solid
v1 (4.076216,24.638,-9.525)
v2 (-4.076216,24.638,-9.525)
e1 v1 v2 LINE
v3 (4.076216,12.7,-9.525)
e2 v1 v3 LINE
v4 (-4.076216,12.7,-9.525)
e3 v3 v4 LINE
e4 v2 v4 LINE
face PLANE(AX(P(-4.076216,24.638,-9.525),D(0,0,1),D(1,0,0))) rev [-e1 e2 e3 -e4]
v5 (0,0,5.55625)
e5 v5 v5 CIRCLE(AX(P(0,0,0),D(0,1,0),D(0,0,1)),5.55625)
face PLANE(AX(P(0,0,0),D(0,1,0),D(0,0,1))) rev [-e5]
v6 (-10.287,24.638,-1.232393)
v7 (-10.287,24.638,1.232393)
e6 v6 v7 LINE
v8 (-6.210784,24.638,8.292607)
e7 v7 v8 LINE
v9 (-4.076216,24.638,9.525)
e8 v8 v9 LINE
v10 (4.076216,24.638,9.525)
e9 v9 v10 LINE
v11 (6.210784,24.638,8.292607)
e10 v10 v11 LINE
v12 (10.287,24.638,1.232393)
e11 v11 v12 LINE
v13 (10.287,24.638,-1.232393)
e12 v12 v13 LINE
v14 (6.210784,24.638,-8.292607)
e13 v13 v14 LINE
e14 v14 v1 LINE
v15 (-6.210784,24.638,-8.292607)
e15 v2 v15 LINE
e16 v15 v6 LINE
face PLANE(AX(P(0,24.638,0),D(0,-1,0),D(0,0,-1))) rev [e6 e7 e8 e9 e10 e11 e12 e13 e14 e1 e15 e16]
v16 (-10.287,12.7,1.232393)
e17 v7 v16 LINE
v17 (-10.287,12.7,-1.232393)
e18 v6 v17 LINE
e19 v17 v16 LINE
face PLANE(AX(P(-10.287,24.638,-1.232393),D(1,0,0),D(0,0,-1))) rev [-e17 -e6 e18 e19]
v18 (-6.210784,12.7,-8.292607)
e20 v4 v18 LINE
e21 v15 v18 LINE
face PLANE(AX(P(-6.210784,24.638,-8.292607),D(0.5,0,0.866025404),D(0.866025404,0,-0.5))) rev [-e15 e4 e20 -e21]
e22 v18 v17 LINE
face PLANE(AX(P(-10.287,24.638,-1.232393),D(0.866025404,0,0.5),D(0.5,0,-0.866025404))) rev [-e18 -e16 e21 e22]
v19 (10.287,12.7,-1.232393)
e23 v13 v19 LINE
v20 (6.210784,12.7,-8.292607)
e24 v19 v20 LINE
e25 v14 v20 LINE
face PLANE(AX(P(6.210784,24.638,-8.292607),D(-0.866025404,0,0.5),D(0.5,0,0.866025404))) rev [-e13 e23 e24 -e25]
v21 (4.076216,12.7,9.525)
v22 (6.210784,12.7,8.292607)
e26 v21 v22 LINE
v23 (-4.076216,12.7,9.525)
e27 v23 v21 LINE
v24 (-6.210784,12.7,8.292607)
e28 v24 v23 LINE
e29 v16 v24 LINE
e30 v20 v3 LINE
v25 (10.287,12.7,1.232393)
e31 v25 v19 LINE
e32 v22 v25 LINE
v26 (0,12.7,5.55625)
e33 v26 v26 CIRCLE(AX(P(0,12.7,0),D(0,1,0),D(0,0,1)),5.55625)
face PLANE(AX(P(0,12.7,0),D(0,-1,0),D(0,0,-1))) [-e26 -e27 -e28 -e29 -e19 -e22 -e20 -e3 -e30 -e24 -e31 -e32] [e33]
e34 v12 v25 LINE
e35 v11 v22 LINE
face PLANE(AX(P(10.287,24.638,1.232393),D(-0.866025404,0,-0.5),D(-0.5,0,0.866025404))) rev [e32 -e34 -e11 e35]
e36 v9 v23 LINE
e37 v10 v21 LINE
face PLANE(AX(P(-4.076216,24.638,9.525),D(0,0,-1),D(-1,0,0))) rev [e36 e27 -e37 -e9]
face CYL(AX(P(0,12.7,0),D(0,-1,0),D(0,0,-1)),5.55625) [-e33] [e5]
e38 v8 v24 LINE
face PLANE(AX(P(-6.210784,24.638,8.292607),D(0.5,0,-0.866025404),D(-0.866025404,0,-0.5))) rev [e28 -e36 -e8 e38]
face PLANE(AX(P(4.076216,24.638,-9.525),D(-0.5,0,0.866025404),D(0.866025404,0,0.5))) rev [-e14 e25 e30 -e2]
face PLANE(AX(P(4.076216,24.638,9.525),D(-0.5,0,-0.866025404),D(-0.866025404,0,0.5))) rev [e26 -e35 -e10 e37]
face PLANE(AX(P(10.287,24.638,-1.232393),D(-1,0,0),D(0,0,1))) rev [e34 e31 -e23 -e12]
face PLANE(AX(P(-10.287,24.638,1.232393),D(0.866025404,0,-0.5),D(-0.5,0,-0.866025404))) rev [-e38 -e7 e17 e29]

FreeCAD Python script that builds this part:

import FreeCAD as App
import Part
import Sketcher

V = App.Vector
Q = App.Units.Quantity


def add_polygon(sketch, points):
    """Adds a closed chain of lines whose ends are joined by coincident constraints."""
    first, n = sketch.GeometryCount, len(points)
    for a, b in zip(points, points[1:] + points[:1]):
        sketch.addGeometry(Part.LineSegment(App.Vector(*a, 0), App.Vector(*b, 0)), False)
    for i in range(n):
        sketch.addConstraint(Sketcher.Constraint("Coincident", first + i, 2, first + (i + 1) % n, 1))

doc = App.newDocument("Part")
body = doc.addObject("PartDesign::Body", "Body")

sketch1 = doc.addObject("Sketcher::SketchObject", "Sketch")
body.addObject(sketch1)
sketch1.AttachmentSupport = (doc.XZ_Plane, [""])
sketch1.MapMode = "FlatFace"
sketch1.addGeometry(Part.Circle(V(0, 0, 0), V(0, 0, 1), 6), False)
sketch1.addConstraint(Sketcher.Constraint("Coincident", 0, 3, -1, 1))
sketch1.addConstraint(Sketcher.Constraint("Diameter", 0, Q("0.4375 in")))
pad1 = doc.addObject("PartDesign::Pad", "Pad")
body.addObject(pad1)
pad1.Profile = sketch1
pad1.Length = Q("0.5 in")
pad1.Reversed = True

sketch2 = doc.addObject("Sketcher::SketchObject", "Sketch001")
body.addObject(sketch2)
sketch2.AttachmentSupport = (doc.XZ_Plane, [""])
sketch2.MapMode = "FlatFace"
sketch2.AttachmentOffset = App.Placement(V(0, 0, -0.5 * 25.4), App.Rotation())
add_polygon(sketch2, [(-10.3, -1.2), (-10.3, 1.2), (-6.2, 8.3), (-4.1, 9.5), (4.1, 9.5), (6.2, 8.3), (10.3, 1.2), (10.3, -1.2), (6.2, -8.3), (4.1, -9.5), (-4.1, -9.5), (-6.2, -8.3)])
sketch2.addConstraint(Sketcher.Constraint("Vertical", 0))
sketch2.addConstraint(Sketcher.Constraint("Horizontal", 3))
sketch2.addConstraint(Sketcher.Constraint("Vertical", 6))
sketch2.addConstraint(Sketcher.Constraint("Horizontal", 9))
sketch2.addConstraint(Sketcher.Constraint("Symmetric", 0, 2, 6, 2, -1, 1))
sketch2.addConstraint(Sketcher.Constraint("Symmetric", 1, 2, 7, 2, -1, 1))
sketch2.addConstraint(Sketcher.Constraint("Symmetric", 2, 2, 8, 2, -1, 1))
sketch2.addConstraint(Sketcher.Constraint("Symmetric", 4, 2, 10, 2, -1, 1))
sketch2.addConstraint(Sketcher.Constraint("Symmetric", 1, 2, 4, 2, -2))
sketch2.addConstraint(Sketcher.Constraint("Perpendicular", 1, 4))
sketch2.addConstraint(Sketcher.Constraint("Perpendicular", 2, 5))
sketch2.addConstraint(Sketcher.Constraint("Perpendicular", 7, 10))
sketch2.addConstraint(Sketcher.Constraint("Perpendicular", 8, 11))
sketch2.addConstraint(Sketcher.Constraint("Horizontal", 0, 2, 5, 2))
sketch2.addConstraint(Sketcher.Constraint("Angle", 1, Q("60 deg")))
sketch2.addConstraint(Sketcher.Constraint("DistanceX", 0, 2, 5, 2, Q("0.81 in")))
sketch2.addConstraint(Sketcher.Constraint("DistanceY", -1, 1, 2, 2, Q("0.375 in")))
sketch2.addConstraint(Sketcher.Constraint("DistanceX", 1, 2, 3, 2, Q("0.405 in")))
sketch2.addConstraint(Sketcher.Constraint("DistanceY", 6, 2, 4, 2, Q("0.375 in")))
pad2 = doc.addObject("PartDesign::Pad", "Pad001")
body.addObject(pad2)
pad2.Profile = sketch2
pad2.Length = Q("0.47 in")
pad2.Reversed = True

doc.recompute()
